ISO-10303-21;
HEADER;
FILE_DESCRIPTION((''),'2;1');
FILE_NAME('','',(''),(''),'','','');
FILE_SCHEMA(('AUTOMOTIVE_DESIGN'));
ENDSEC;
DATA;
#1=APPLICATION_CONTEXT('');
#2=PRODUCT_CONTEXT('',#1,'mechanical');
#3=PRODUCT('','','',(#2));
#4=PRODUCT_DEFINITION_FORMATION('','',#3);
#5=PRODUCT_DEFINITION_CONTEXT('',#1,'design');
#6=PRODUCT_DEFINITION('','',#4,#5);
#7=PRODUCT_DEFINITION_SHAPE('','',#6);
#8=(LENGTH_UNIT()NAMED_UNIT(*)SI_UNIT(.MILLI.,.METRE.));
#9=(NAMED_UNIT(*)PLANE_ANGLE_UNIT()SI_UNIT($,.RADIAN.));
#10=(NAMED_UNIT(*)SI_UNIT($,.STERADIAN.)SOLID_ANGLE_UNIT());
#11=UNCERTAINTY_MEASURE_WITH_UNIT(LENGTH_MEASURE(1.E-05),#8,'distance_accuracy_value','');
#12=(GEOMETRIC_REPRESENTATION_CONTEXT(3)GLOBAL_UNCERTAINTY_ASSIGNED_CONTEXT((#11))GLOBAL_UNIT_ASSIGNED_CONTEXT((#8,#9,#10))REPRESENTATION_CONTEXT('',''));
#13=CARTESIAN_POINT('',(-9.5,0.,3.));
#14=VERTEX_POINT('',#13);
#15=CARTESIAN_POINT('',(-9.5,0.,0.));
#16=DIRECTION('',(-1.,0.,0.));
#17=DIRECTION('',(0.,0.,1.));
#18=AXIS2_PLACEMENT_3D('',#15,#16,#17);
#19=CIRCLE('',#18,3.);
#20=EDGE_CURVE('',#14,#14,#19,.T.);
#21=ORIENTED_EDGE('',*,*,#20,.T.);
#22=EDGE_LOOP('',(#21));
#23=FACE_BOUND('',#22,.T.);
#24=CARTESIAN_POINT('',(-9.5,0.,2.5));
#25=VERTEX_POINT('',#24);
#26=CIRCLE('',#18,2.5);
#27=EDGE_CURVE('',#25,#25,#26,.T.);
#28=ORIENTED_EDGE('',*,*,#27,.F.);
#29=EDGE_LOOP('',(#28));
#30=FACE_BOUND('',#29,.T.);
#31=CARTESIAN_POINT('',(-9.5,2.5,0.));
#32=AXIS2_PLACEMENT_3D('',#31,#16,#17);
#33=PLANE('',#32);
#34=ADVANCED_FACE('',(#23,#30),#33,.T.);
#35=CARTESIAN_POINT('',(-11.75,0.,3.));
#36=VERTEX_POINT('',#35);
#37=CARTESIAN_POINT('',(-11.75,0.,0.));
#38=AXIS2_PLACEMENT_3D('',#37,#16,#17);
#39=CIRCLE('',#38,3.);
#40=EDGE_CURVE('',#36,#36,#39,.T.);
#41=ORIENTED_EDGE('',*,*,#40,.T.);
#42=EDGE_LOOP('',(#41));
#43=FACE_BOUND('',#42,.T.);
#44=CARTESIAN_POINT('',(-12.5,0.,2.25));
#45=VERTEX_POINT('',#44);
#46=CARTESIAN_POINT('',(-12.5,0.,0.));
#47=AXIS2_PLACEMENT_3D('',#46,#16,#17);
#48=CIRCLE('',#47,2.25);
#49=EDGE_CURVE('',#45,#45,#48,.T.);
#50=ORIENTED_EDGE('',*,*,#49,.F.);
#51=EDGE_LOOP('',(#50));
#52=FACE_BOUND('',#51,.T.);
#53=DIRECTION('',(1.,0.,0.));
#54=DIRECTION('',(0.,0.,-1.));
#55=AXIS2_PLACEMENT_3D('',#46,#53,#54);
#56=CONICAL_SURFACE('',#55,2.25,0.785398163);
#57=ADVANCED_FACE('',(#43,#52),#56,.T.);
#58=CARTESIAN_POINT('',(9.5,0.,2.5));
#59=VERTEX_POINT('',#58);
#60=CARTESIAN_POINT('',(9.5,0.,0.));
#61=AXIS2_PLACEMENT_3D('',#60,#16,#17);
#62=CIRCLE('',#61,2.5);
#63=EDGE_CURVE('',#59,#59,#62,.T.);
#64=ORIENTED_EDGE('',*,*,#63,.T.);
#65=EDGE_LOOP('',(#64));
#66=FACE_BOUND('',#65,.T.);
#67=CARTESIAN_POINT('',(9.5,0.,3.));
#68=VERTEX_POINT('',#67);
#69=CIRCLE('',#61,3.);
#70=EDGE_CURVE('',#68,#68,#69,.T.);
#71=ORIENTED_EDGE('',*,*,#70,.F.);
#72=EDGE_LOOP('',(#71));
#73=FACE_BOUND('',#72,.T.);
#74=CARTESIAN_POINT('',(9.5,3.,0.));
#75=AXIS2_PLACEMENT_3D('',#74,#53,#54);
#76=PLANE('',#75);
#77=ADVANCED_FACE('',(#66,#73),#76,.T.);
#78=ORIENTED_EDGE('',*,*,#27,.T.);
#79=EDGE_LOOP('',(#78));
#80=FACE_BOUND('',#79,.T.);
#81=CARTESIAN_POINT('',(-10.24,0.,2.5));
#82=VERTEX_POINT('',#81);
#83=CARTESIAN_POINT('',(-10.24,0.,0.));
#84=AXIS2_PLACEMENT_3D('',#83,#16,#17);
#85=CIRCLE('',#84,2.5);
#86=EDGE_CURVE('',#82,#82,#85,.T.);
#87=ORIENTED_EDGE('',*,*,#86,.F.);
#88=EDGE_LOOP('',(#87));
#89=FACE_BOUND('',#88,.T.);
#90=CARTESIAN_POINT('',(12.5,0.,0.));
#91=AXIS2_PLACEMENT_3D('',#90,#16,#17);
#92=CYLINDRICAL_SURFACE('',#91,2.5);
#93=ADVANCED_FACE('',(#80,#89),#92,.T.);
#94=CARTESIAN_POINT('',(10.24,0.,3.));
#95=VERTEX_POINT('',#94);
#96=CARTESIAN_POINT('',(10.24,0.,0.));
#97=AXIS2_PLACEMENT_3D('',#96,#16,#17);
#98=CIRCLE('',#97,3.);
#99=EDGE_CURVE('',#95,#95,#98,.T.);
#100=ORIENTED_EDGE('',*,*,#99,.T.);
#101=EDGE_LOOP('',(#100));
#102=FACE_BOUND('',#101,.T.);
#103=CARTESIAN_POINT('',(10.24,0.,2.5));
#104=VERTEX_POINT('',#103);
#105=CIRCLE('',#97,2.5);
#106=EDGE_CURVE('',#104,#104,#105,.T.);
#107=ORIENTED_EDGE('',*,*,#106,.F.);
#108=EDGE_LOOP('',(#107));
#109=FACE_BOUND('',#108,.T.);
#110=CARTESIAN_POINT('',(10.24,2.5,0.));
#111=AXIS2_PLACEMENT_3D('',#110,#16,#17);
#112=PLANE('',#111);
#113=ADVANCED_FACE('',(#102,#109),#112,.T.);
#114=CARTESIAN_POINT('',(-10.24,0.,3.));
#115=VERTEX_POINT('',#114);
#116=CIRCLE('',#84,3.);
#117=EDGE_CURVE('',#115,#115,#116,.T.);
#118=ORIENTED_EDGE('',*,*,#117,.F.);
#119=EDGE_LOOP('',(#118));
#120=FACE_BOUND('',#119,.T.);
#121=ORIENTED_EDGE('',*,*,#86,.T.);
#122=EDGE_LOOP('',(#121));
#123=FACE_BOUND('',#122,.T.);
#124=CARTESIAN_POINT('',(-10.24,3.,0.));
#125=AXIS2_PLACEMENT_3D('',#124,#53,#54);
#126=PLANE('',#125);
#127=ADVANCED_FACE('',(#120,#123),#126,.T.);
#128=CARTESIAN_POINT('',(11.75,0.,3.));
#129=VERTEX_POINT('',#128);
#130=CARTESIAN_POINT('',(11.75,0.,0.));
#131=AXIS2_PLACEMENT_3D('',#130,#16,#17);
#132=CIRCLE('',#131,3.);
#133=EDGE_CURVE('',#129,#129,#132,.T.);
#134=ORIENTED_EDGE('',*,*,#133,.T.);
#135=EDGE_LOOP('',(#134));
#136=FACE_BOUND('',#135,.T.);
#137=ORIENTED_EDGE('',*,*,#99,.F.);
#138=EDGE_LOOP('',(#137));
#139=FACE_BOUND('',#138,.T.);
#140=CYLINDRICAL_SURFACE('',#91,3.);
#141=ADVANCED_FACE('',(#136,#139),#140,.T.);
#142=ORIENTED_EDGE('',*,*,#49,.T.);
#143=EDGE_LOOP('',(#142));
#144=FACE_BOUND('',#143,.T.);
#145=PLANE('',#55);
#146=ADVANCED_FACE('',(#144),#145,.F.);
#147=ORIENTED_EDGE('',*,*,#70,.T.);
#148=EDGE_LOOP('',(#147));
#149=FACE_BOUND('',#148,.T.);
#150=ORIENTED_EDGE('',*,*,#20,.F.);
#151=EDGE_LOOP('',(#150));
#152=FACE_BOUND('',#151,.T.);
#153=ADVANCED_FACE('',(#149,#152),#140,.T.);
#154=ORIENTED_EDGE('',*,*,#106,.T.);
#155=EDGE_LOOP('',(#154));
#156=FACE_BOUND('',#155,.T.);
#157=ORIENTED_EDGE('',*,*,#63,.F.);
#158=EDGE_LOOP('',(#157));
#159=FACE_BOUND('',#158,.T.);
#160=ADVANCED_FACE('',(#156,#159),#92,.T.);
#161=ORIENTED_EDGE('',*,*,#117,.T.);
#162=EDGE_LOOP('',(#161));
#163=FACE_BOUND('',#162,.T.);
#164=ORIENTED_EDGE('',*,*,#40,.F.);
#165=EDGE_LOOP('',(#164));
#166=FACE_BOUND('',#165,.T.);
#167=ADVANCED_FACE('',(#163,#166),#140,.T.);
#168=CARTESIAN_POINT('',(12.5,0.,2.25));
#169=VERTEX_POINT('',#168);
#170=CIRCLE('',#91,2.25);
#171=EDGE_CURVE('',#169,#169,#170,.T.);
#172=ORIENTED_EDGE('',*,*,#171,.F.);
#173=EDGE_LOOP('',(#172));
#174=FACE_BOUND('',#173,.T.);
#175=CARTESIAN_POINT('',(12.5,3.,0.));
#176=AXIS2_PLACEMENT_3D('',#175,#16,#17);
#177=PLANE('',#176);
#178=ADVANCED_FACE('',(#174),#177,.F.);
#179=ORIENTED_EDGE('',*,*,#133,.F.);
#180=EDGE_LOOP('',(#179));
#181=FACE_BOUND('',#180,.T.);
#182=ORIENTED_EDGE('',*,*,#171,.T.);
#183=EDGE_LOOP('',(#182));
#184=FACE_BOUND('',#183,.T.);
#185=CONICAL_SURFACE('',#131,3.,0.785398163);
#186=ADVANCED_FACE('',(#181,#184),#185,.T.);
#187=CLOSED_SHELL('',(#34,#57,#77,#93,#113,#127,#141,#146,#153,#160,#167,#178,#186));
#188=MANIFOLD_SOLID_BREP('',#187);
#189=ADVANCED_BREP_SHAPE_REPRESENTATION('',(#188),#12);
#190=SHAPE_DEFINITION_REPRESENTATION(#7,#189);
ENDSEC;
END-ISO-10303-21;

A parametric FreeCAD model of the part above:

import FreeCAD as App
import Part
import Sketcher

V = App.Vector

doc = App.newDocument("Part")
body = doc.addObject("PartDesign::Body", "Body")

sketch1 = body.newObject("Sketcher::SketchObject", "Sketch")
sketch1.AttachmentSupport = (doc.getObject("XY_Plane"), [""])
sketch1.MapMode = "FlatFace"
sketch1.addGeometry(Part.LineSegment(V(-12.5, 3, 0), V(-12.5, 0, 0)), False)
sketch1.addGeometry(Part.LineSegment(V(-12.5, 0, 0), V(12.5, 0, 0)), False)
sketch1.addGeometry(Part.LineSegment(V(12.5, 0, 0), V(12.5, 3, 0)), False)
sketch1.addGeometry(Part.LineSegment(V(12.5, 3, 0), V(-12.5, 3, 0)), False)
sketch1.addConstraint(Sketcher.Constraint("Coincident", 0, 2, 1, 1))
sketch1.addConstraint(Sketcher.Constraint("Coincident", 1, 2, 2, 1))
sketch1.addConstraint(Sketcher.Constraint("Coincident", 2, 2, 3, 1))
sketch1.addConstraint(Sketcher.Constraint("Coincident", 3, 2, 0, 1))
sketch1.addConstraint(Sketcher.Constraint("Vertical", 0))
sketch1.addConstraint(Sketcher.Constraint("Horizontal", 1))
sketch1.addConstraint(Sketcher.Constraint("Vertical", 2))
sketch1.addConstraint(Sketcher.Constraint("Horizontal", 3))
sketch1.addConstraint(Sketcher.Constraint("Symmetric", 0, 2, 1, 2, -1, 1))
sketch1.addConstraint(Sketcher.Constraint("DistanceX", 1, 1, 1, 2, 25.0))
sketch1.addConstraint(Sketcher.Constraint("DistanceY", 0, 2, 0, 1, 3.0))
revolution = body.newObject("PartDesign::Revolution", "Revolution")
revolution.Profile = sketch1
revolution.ReferenceAxis = (sketch1, ["H_Axis"])
revolution.Angle = 360

sketch2 = body.newObject("Sketcher::SketchObject", "Sketch001")
sketch2.AttachmentSupport = (doc.getObject("XY_Plane"), [""])
sketch2.MapMode = "FlatFace"
sketch2.addGeometry(Part.LineSegment(V(11.8, 3, 0), V(12.5, 2.2, 0)), False)
sketch2.addGeometry(Part.LineSegment(V(12.5, 2.2, 0), V(12.5, 3, 0)), False)
sketch2.addGeometry(Part.LineSegment(V(12.5, 3, 0), V(11.8, 3, 0)), False)
sketch2.addConstraint(Sketcher.Constraint("Coincident", 0, 2, 1, 1))
sketch2.addConstraint(Sketcher.Constraint("Coincident", 1, 2, 2, 1))
sketch2.addConstraint(Sketcher.Constraint("Coincident", 2, 2, 0, 1))
sketch2.addConstraint(Sketcher.Constraint("Vertical", 1))
sketch2.addConstraint(Sketcher.Constraint("Horizontal", 2))
sketch2.addConstraint(Sketcher.Constraint("Equal", 2, 1))
sketch2.addConstraint(Sketcher.Constraint("DistanceY", -1, 1, 1, 2, 3.0))
sketch2.addConstraint(Sketcher.Constraint("DistanceX", 2, 2, 2, 1, 0.75))
sketch2.addConstraint(Sketcher.Constraint("DistanceX", -1, 1, 0, 2, 12.5))
groove = body.newObject("PartDesign::Groove", "Groove")
groove.Profile = sketch2
groove.ReferenceAxis = (sketch2, ["H_Axis"])
groove.Angle = 360

sketch3 = body.newObject("Sketcher::SketchObject", "Sketch002")
sketch3.AttachmentSupport = (doc.getObject("XY_Plane"), [""])
sketch3.MapMode = "FlatFace"
sketch3.addGeometry(Part.LineSegment(V(-12.5, 2.2, 0), V(-11.8, 3, 0)), False)
sketch3.addGeometry(Part.LineSegment(V(-11.8, 3, 0), V(-12.5, 3, 0)), False)
sketch3.addGeometry(Part.LineSegment(V(-12.5, 3, 0), V(-12.5, 2.2, 0)), False)
sketch3.addConstraint(Sketcher.Constraint("Coincident", 0, 2, 1, 1))
sketch3.addConstraint(Sketcher.Constraint("Coincident", 1, 2, 2, 1))
sketch3.addConstraint(Sketcher.Constraint("Coincident", 2, 2, 0, 1))
sketch3.addConstraint(Sketcher.Constraint("Horizontal", 1))
sketch3.addConstraint(Sketcher.Constraint("Vertical", 2))
sketch3.addConstraint(Sketcher.Constraint("Equal", 1, 2))
sketch3.addConstraint(Sketcher.Constraint("DistanceY", -1, 1, 0, 2, 3.0))
sketch3.addConstraint(Sketcher.Constraint("DistanceX", 1, 2, 1, 1, 0.75))
sketch3.addConstraint(Sketcher.Constraint("DistanceX", 1, 2, -1, 1, 12.5))
groove2 = body.newObject("PartDesign::Groove", "Groove001")
groove2.Profile = sketch3
groove2.ReferenceAxis = (sketch3, ["H_Axis"])
groove2.Angle = 360

sketch4 = body.newObject("Sketcher::SketchObject", "Sketch003")
sketch4.AttachmentSupport = (doc.getObject("XY_Plane"), [""])
sketch4.MapMode = "FlatFace"
sketch4.addGeometry(Part.LineSegment(V(9.5, 3, 0), V(9.5, 2.5, 0)), False)
sketch4.addGeometry(Part.LineSegment(V(9.5, 2.5, 0), V(10.2, 2.5, 0)), False)
sketch4.addGeometry(Part.LineSegment(V(10.2, 2.5, 0), V(10.2, 3, 0)), False)
sketch4.addGeometry(Part.LineSegment(V(10.2, 3, 0), V(9.5, 3, 0)), False)
sketch4.addConstraint(Sketcher.Constraint("Coincident", 0, 2, 1, 1))
sketch4.addConstraint(Sketcher.Constraint("Coincident", 1, 2, 2, 1))
sketch4.addConstraint(Sketcher.Constraint("Coincident", 2, 2, 3, 1))
sketch4.addConstraint(Sketcher.Constraint("Coincident", 3, 2, 0, 1))
sketch4.addConstraint(Sketcher.Constraint("Vertical", 0))
sketch4.addConstraint(Sketcher.Constraint("Horizontal", 1))
sketch4.addConstraint(Sketcher.Constraint("Vertical", 2))
sketch4.addConstraint(Sketcher.Constraint("Horizontal", 3))
sketch4.addConstraint(Sketcher.Constraint("DistanceY", 0, 2, 0, 1, 0.5))
sketch4.addConstraint(Sketcher.Constraint("DistanceY", -1, 1, 2, 2, 3.0))
sketch4.addConstraint(Sketcher.Constraint("DistanceX", 1, 1, 1, 2, 0.74))
sketch4.addConstraint(Sketcher.Constraint("DistanceX", -1, 1, 0, 2, 9.5))
groove3 = body.newObject("PartDesign::Groove", "Groove002")
groove3.Profile = sketch4
groove3.ReferenceAxis = (sketch4, ["H_Axis"])
groove3.Angle = 360

sketch5 = body.newObject("Sketcher::SketchObject", "Sketch004")
sketch5.AttachmentSupport = (doc.getObject("XY_Plane"), [""])
sketch5.MapMode = "FlatFace"
sketch5.addGeometry(Part.LineSegment(V(-10.2, 3, 0), V(-10.2, 2.5, 0)), False)
sketch5.addGeometry(Part.LineSegment(V(-10.2, 2.5, 0), V(-9.5, 2.5, 0)), False)
sketch5.addGeometry(Part.LineSegment(V(-9.5, 2.5, 0), V(-9.5, 3, 0)), False)
sketch5.addGeometry(Part.LineSegment(V(-9.5, 3, 0), V(-10.2, 3, 0)), False)
sketch5.addConstraint(Sketcher.Constraint("Coincident", 0, 2, 1, 1))
sketch5.addConstraint(Sketcher.Constraint("Coincident", 1, 2, 2, 1))
sketch5.addConstraint(Sketcher.Constraint("Coincident", 2, 2, 3, 1))
sketch5.addConstraint(Sketcher.Constraint("Coincident", 3, 2, 0, 1))
sketch5.addConstraint(Sketcher.Constraint("Vertical", 0))
sketch5.addConstraint(Sketcher.Constraint("Horizontal", 1))
sketch5.addConstraint(Sketcher.Constraint("Vertical", 2))
sketch5.addConstraint(Sketcher.Constraint("Horizontal", 3))
sketch5.addConstraint(Sketcher.Constraint("DistanceY", 0, 2, 0, 1, 0.5))
sketch5.addConstraint(Sketcher.Constraint("DistanceY", -1, 1, 2, 2, 3.0))
sketch5.addConstraint(Sketcher.Constraint("DistanceX", 1, 1, 1, 2, 0.74))
sketch5.addConstraint(Sketcher.Constraint("DistanceX", 1, 2, -1, 1, 9.5))
groove4 = body.newObject("PartDesign::Groove", "Groove003")
groove4.Profile = sketch5
groove4.ReferenceAxis = (sketch5, ["H_Axis"])
groove4.Angle = 360

doc.recompute()
